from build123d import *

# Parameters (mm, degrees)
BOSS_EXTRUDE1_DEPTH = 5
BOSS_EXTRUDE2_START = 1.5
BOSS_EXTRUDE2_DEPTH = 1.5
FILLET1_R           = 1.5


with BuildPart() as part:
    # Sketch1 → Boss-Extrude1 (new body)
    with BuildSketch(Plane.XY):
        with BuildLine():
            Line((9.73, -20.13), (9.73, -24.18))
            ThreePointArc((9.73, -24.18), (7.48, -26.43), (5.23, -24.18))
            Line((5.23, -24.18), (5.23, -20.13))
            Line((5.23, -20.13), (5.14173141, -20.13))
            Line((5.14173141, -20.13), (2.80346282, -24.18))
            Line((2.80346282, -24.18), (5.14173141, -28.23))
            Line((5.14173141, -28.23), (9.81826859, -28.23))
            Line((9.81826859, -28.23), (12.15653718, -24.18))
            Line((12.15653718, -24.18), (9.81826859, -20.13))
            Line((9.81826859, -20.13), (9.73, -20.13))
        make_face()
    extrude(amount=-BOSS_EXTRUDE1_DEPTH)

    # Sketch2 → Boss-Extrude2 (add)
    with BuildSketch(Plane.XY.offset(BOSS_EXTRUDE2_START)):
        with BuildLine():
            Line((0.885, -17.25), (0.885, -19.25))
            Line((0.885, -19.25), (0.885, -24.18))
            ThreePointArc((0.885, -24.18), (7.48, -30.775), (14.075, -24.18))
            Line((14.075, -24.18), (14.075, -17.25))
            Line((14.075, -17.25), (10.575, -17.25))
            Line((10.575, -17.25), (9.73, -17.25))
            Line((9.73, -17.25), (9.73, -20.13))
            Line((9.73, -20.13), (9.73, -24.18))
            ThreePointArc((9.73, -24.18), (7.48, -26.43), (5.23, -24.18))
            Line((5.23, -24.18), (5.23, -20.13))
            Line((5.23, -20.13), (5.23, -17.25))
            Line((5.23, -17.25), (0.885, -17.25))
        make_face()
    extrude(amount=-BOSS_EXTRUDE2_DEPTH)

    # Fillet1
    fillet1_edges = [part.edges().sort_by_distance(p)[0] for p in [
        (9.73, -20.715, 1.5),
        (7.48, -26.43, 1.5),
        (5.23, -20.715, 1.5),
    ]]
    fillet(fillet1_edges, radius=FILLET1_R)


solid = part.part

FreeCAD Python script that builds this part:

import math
import FreeCAD as App
import Part
import Sketcher
from FreeCAD import Vector
Q = App.Units.Quantity


def edges_at(feature, points):
    """Names of the edges that pass closest to the given points."""
    edges = feature.Shape.Edges
    near = lambda p: min(range(len(edges)), key=lambda i: edges[i].distToShape(Part.Vertex(*p))[0])
    return sorted({f"Edge{near(p) + 1}" for p in points})

doc = App.newDocument("Part")
body = doc.addObject("PartDesign::Body", "Body")

# Sketch on XY plane
sketch1 = body.newObject("Sketcher::SketchObject", "Sketch")
sketch1.AttachmentSupport = (doc.getObject("XY_Plane"), [""])
sketch1.MapMode = "FlatFace"
sketch1.addGeometry(Part.LineSegment(Vector(9.73, -20.13, 0), Vector(9.73, -24.18, 0)), False)
sketch1.addGeometry(Part.ArcOfCircle(Part.Circle(Vector(7.48, -24.18, 0), Vector(0, 0, 1), 2.25), math.radians(180), math.radians(360)), False)
sketch1.addGeometry(Part.LineSegment(Vector(5.23, -24.18, 0), Vector(5.23, -20.13, 0)), False)
sketch1.addGeometry(Part.LineSegment(Vector(5.23, -20.13, 0), Vector(5.14, -20.13, 0)), False)
sketch1.addGeometry(Part.LineSegment(Vector(5.14, -20.13, 0), Vector(2.8, -24.18, 0)), False)
sketch1.addGeometry(Part.LineSegment(Vector(2.8, -24.18, 0), Vector(5.14, -28.23, 0)), False)
sketch1.addGeometry(Part.LineSegment(Vector(5.14, -28.23, 0), Vector(9.82, -28.23, 0)), False)
sketch1.addGeometry(Part.LineSegment(Vector(9.82, -28.23, 0), Vector(12.16, -24.18, 0)), False)
sketch1.addGeometry(Part.LineSegment(Vector(12.16, -24.18, 0), Vector(9.82, -20.13, 0)), False)
sketch1.addGeometry(Part.LineSegment(Vector(9.82, -20.13, 0), Vector(9.73, -20.13, 0)), False)
sketch1.addConstraint(Sketcher.Constraint("Tangent", 0, 2, 1, 2))
sketch1.addConstraint(Sketcher.Constraint("Tangent", 1, 1, 2, 1))
sketch1.addConstraint(Sketcher.Constraint("Coincident", 2, 2, 3, 1))
sketch1.addConstraint(Sketcher.Constraint("Coincident", 3, 2, 4, 1))
sketch1.addConstraint(Sketcher.Constraint("Coincident", 4, 2, 5, 1))
sketch1.addConstraint(Sketcher.Constraint("Coincident", 5, 2, 6, 1))
sketch1.addConstraint(Sketcher.Constraint("Coincident", 6, 2, 7, 1))
sketch1.addConstraint(Sketcher.Constraint("Coincident", 7, 2, 8, 1))
sketch1.addConstraint(Sketcher.Constraint("Coincident", 8, 2, 9, 1))
sketch1.addConstraint(Sketcher.Constraint("Coincident", 9, 2, 0, 1))
sketch1.addConstraint(Sketcher.Constraint("Vertical", 0))
sketch1.addConstraint(Sketcher.Constraint("Vertical", 2))
sketch1.addConstraint(Sketcher.Constraint("Horizontal", 3))
sketch1.addConstraint(Sketcher.Constraint("Horizontal", 6))
sketch1.addConstraint(Sketcher.Constraint("Horizontal", 9))
sketch1.addConstraint(Sketcher.Constraint("Parallel", 4, 7))
sketch1.addConstraint(Sketcher.Constraint("Parallel", 5, 8))
sketch1.addConstraint(Sketcher.Constraint("Horizontal", 1, 1, 4, 2))
sketch1.addConstraint(Sketcher.Constraint("Horizontal", 4, 2, 7, 2))
sketch1.addConstraint(Sketcher.Constraint("Horizontal", 3, 2, 8, 2))
sketch1.addConstraint(Sketcher.Constraint("Vertical", 3, 2, 5, 2))
sketch1.addConstraint(Sketcher.Constraint("Vertical", 6, 2, 8, 2))
sketch1.addConstraint(Sketcher.Constraint("Equal", 3, 9))
sketch1.addConstraint(Sketcher.Constraint("Angle", 4, Q("-120 deg")))
sketch1.addConstraint(Sketcher.Constraint("Radius", 1, Q("2.25 mm")))
sketch1.addConstraint(Sketcher.Constraint("DistanceY", 0, 2, 0, 1, Q("4.05 mm")))
sketch1.addConstraint(Sketcher.Constraint("DistanceX", -1, 1, 1, 3, Q("7.48 mm")))
sketch1.addConstraint(Sketcher.Constraint("DistanceY", 1, 3, -1, 1, Q("24.18 mm")))
sketch1.addConstraint(Sketcher.Constraint("DistanceX", 3, 2, 3, 1, Q("0.088269 mm")))
pad1 = body.newObject("PartDesign::Pad", "Pad")
pad1.Profile = sketch1
pad1.Length = 5
pad1.Reversed = True

# Sketch on XY plane
sketch2 = body.newObject("Sketcher::SketchObject", "Sketch001")
sketch2.AttachmentSupport = (doc.getObject("XY_Plane"), [""])
sketch2.MapMode = "FlatFace"
sketch2.AttachmentOffset = App.Placement(Vector(0, 0, 1.5), App.Rotation())
sketch2.addGeometry(Part.LineSegment(Vector(0.9, -17.2, 0), Vector(0.9, -24.2, 0)), False)
sketch2.addGeometry(Part.ArcOfCircle(Part.Circle(Vector(7.5, -24.2, 0), Vector(0, 0, 1), 6.6), math.radians(180), math.radians(360)), False)
sketch2.addGeometry(Part.LineSegment(Vector(14.1, -24.2, 0), Vector(14.1, -17.2, 0)), False)
sketch2.addGeometry(Part.LineSegment(Vector(14.1, -17.2, 0), Vector(9.7, -17.2, 0)), False)
sketch2.addGeometry(Part.LineSegment(Vector(9.7, -17.2, 0), Vector(9.7, -24.2, 0)), False)
sketch2.addGeometry(Part.ArcOfCircle(Part.Circle(Vector(7.5, -24.2, 0), Vector(0, 0, 1), 2.2), math.radians(180), math.radians(360)), False)
sketch2.addGeometry(Part.LineSegment(Vector(5.2, -24.2, 0), Vector(5.2, -17.2, 0)), False)
sketch2.addGeometry(Part.LineSegment(Vector(5.2, -17.2, 0), Vector(0.9, -17.2, 0)), False)
sketch2.addConstraint(Sketcher.Constraint("Tangent", 0, 2, 1, 1))
sketch2.addConstraint(Sketcher.Constraint("Tangent", 1, 2, 2, 1))
sketch2.addConstraint(Sketcher.Constraint("Coincident", 2, 2, 3, 1))
sketch2.addConstraint(Sketcher.Constraint("Coincident", 3, 2, 4, 1))
sketch2.addConstraint(Sketcher.Constraint("Tangent", 4, 2, 5, 2))
sketch2.addConstraint(Sketcher.Constraint("Tangent", 5, 1, 6, 1))
sketch2.addConstraint(Sketcher.Constraint("Coincident", 6, 2, 7, 1))
sketch2.addConstraint(Sketcher.Constraint("Coincident", 7, 2, 0, 1))
sketch2.addConstraint(Sketcher.Constraint("Vertical", 0))
sketch2.addConstraint(Sketcher.Constraint("Vertical", 2))
sketch2.addConstraint(Sketcher.Constraint("Horizontal", 3))
sketch2.addConstraint(Sketcher.Constraint("Vertical", 4))
sketch2.addConstraint(Sketcher.Constraint("Vertical", 6))
sketch2.addConstraint(Sketcher.Constraint("Horizontal", 7))
sketch2.addConstraint(Sketcher.Constraint("Coincident", 5, 3, 1, 3))
sketch2.addConstraint(Sketcher.Constraint("Horizontal", 3, 2, 6, 2))
sketch2.addConstraint(Sketcher.Constraint("Radius", 5, Q("2.25 mm")))
sketch2.addConstraint(Sketcher.Constraint("Radius", 1, Q("6.595 mm")))
sketch2.addConstraint(Sketcher.Constraint("DistanceY", 0, 2, 0, 1, Q("6.93 mm")))
sketch2.addConstraint(Sketcher.Constraint("DistanceX", -1, 1, 1, 3, Q("7.48 mm")))
sketch2.addConstraint(Sketcher.Constraint("DistanceY", 1, 3, -1, 1, Q("24.18 mm")))
pad2 = body.newObject("PartDesign::Pad", "Pad001")
pad2.Profile = sketch2
pad2.Length = 1.5
pad2.Reversed = True
doc.recompute()

fillet = body.newObject("PartDesign::Fillet", "Fillet")
fillet.Base = (pad2, edges_at(pad2, [(9.73, -20.715, 1.5), (7.48, -26.43, 1.5), (5.23, -20.715, 1.5)]))
fillet.Radius = 1.5

doc.recompute()
